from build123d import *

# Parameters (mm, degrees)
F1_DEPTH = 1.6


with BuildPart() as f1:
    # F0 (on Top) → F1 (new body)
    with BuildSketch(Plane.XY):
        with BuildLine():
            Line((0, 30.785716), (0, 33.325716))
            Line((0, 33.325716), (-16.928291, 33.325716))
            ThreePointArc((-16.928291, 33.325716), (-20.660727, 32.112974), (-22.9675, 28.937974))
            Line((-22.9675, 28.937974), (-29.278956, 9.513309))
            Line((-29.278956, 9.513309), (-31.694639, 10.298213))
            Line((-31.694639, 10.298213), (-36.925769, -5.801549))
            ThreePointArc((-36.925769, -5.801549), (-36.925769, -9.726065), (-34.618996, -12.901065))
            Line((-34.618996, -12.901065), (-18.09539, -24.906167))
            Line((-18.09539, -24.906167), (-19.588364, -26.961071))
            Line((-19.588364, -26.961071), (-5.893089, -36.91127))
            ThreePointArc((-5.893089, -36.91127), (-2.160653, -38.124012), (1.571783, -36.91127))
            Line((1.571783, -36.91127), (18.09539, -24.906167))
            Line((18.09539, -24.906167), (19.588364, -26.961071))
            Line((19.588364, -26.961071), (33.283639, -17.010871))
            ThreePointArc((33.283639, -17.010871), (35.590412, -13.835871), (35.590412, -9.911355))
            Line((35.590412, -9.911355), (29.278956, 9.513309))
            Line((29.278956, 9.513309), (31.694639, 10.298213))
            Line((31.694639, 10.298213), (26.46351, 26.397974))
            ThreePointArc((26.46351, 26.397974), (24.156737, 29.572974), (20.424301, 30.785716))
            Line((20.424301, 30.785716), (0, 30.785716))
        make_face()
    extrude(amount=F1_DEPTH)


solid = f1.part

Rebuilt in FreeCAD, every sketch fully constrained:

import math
import FreeCAD as App
import Part
import Sketcher

V = App.Vector
Q = App.Units.Quantity

doc = App.newDocument("Part")
params = doc.addObject("Spreadsheet::Sheet", "Params")
for row, (alias, value) in enumerate([
    ("sketch1_radius", "0.25 in"),
    ("sketch1_height", "0.1 in"),
    ("pad1_length", "1.6 mm"),
], start=1):
    params.set(f"A{row}", alias)
    params.set(f"B{row}", "=" + value)
    params.setAlias(f"B{row}", alias)

body = doc.addObject("PartDesign::Body", "Body")

# Sketch on XY plane
sketch1 = body.newObject("Sketcher::SketchObject", "Sketch")
sketch1.AttachmentSupport = (doc.getObject("XY_Plane"), [""])
sketch1.MapMode = "FlatFace"
sketch1.addGeometry(Part.LineSegment(V(0, 30.785716, 0), V(0, 33.325716, 0)), False)
sketch1.addGeometry(Part.LineSegment(V(0, 33.325716, 0), V(-16.928291, 33.325716, 0)), False)
sketch1.addGeometry(Part.ArcOfCircle(Part.Circle(V(-16.92829, 26.975715, 0), V(0, 0, 1), 6.350001), math.radians(90.000005), math.radians(161.999993)), False)
sketch1.addGeometry(Part.LineSegment(V(-22.9675, 28.937974, 0), V(-29.278956, 9.513309, 0)), False)
sketch1.addGeometry(Part.LineSegment(V(-29.278956, 9.513309, 0), V(-31.694639, 10.298213, 0)), False)
sketch1.addGeometry(Part.LineSegment(V(-31.694639, 10.298213, 0), V(-36.925769, -5.801549, 0)), False)
sketch1.addGeometry(Part.ArcOfCircle(Part.Circle(V(-30.886561, -7.763807, 0), V(0, 0, 1), 6.349999), math.radians(161.999997), math.radians(234.000009)), False)
sketch1.addGeometry(Part.LineSegment(V(-34.618996, -12.901065, 0), V(-18.09539, -24.906167, 0)), False)
sketch1.addGeometry(Part.LineSegment(V(-18.09539, -24.906167, 0), V(-19.588364, -26.961071, 0)), False)
sketch1.addGeometry(Part.LineSegment(V(-19.588364, -26.961071, 0), V(-5.893089, -36.91127, 0)), False)
sketch1.addGeometry(Part.ArcOfCircle(Part.Circle(V(-2.160653, -31.774013, 0), V(0, 0, 1), 6.349999), math.radians(-126.000001), math.radians(-53.999999)), False)
sketch1.addGeometry(Part.LineSegment(V(1.571783, -36.91127, 0), V(18.09539, -24.906167, 0)), False)
sketch1.addGeometry(Part.LineSegment(V(18.09539, -24.906167, 0), V(19.588364, -26.961071, 0)), False)
sketch1.addGeometry(Part.LineSegment(V(19.588364, -26.961071, 0), V(33.283639, -17.010871, 0)), False)
sketch1.addGeometry(Part.ArcOfCircle(Part.Circle(V(29.551204, -11.873613, 0), V(0, 0, 1), 6.349999), math.radians(-54.000009), math.radians(18.000003)), False)
sketch1.addGeometry(Part.LineSegment(V(35.590412, -9.911355, 0), V(29.278956, 9.513309, 0)), False)
sketch1.addGeometry(Part.LineSegment(V(29.278956, 9.513309, 0), V(31.694639, 10.298213, 0)), False)
sketch1.addGeometry(Part.LineSegment(V(31.694639, 10.298213, 0), V(26.46351, 26.397974, 0)), False)
sketch1.addGeometry(Part.ArcOfCircle(Part.Circle(V(20.4243, 24.435715, 0), V(0, 0, 1), 6.350001), math.radians(18.000007), math.radians(89.999995)), False)
sketch1.addGeometry(Part.LineSegment(V(20.424301, 30.785716, 0), V(0, 30.785716, 0)), False)
sketch1.addConstraint(Sketcher.Constraint("Coincident", 0, 2, 1, 1))
sketch1.addConstraint(Sketcher.Constraint("Tangent", 1, 2, 2, 1))
sketch1.addConstraint(Sketcher.Constraint("Tangent", 2, 2, 3, 1))
sketch1.addConstraint(Sketcher.Constraint("Coincident", 3, 2, 4, 1))
sketch1.addConstraint(Sketcher.Constraint("Coincident", 4, 2, 5, 1))
sketch1.addConstraint(Sketcher.Constraint("Tangent", 5, 2, 6, 1))
sketch1.addConstraint(Sketcher.Constraint("Tangent", 6, 2, 7, 1))
sketch1.addConstraint(Sketcher.Constraint("Coincident", 7, 2, 8, 1))
sketch1.addConstraint(Sketcher.Constraint("Coincident", 8, 2, 9, 1))
sketch1.addConstraint(Sketcher.Constraint("Tangent", 9, 2, 10, 1))
sketch1.addConstraint(Sketcher.Constraint("Tangent", 10, 2, 11, 1))
sketch1.addConstraint(Sketcher.Constraint("Coincident", 11, 2, 12, 1))
sketch1.addConstraint(Sketcher.Constraint("Coincident", 12, 2, 13, 1))
sketch1.addConstraint(Sketcher.Constraint("Tangent", 13, 2, 14, 1))
sketch1.addConstraint(Sketcher.Constraint("Tangent", 14, 2, 15, 1))
sketch1.addConstraint(Sketcher.Constraint("Coincident", 15, 2, 16, 1))
sketch1.addConstraint(Sketcher.Constraint("Coincident", 16, 2, 17, 1))
sketch1.addConstraint(Sketcher.Constraint("Tangent", 17, 2, 18, 1))
sketch1.addConstraint(Sketcher.Constraint("Tangent", 18, 2, 19, 1))
sketch1.addConstraint(Sketcher.Constraint("Coincident", 19, 2, 0, 1))
sketch1.addConstraint(Sketcher.Constraint("Vertical", 0))
sketch1.addConstraint(Sketcher.Constraint("Horizontal", 1))
sketch1.addConstraint(Sketcher.Constraint("Horizontal", 19))
sketch1.addConstraint(Sketcher.Constraint("Equal", 2, 6))
sketch1.addConstraint(Sketcher.Constraint("Equal", 6, 10))
sketch1.addConstraint(Sketcher.Constraint("Equal", 10, 14))
sketch1.addConstraint(Sketcher.Constraint("Equal", 14, 18))
sketch1.addConstraint(Sketcher.Constraint("Symmetric", 7, 2, 11, 2, -2))
sketch1.addConstraint(Sketcher.Constraint("Symmetric", 8, 2, 12, 2, -2))
sketch1.addConstraint(Sketcher.Constraint("Symmetric", 3, 2, 15, 2, -2))
sketch1.addConstraint(Sketcher.Constraint("Symmetric", 4, 2, 16, 2, -2))
sketch1.addConstraint(Sketcher.Constraint("PointOnObject", 0, 2, -2))
sketch1.addConstraint(Sketcher.Constraint("Perpendicular", 3, 4))
sketch1.addConstraint(Sketcher.Constraint("Perpendicular", 4, 5))
sketch1.addConstraint(Sketcher.Constraint("Perpendicular", 7, 8))
sketch1.addConstraint(Sketcher.Constraint("Perpendicular", 8, 9))
sketch1.addConstraint(Sketcher.Constraint("Perpendicular", 11, 12))
sketch1.addConstraint(Sketcher.Constraint("Perpendicular", 12, 13))
sketch1.addConstraint(Sketcher.Constraint("Perpendicular", 15, 16))
sketch1.addConstraint(Sketcher.Constraint("Perpendicular", 16, 17))
sketch1.addConstraint(Sketcher.Constraint("Equal", 3, 7))
sketch1.addConstraint(Sketcher.Constraint("Equal", 4, 8))
sketch1.addConstraint(Sketcher.Constraint("Equal", 5, 9))
sketch1.addConstraint(Sketcher.Constraint("Equal", 7, 11))
sketch1.addConstraint(Sketcher.Constraint("Equal", 9, 13))
sketch1.addConstraint(Sketcher.Constraint("Equal", 13, 17))
sketch1.addConstraint(Sketcher.Constraint("Radius", 2, Q("0.25 in")))
sketch1.addConstraint(Sketcher.Constraint("DistanceY", 0, 1, 0, 2, Q("0.1 in")))
sketch1.addConstraint(Sketcher.Constraint("Angle", 3, Q("-107.999999 deg")))
sketch1.addConstraint(Sketcher.Constraint("DistanceX", 19, 2, 19, 1, Q("20.424301 mm")))
sketch1.addConstraint(Sketcher.Constraint("DistanceY", -1, 1, 3, 2, Q("9.513309 mm")))
sketch1.setExpression("Constraints[46]", "Params.sketch1_radius")
sketch1.setExpression("Constraints[47]", "Params.sketch1_height")
pad1 = body.newObject("PartDesign::Pad", "Pad")
pad1.Profile = sketch1
pad1.setExpression("Length", "Params.pad1_length")

doc.recompute()
